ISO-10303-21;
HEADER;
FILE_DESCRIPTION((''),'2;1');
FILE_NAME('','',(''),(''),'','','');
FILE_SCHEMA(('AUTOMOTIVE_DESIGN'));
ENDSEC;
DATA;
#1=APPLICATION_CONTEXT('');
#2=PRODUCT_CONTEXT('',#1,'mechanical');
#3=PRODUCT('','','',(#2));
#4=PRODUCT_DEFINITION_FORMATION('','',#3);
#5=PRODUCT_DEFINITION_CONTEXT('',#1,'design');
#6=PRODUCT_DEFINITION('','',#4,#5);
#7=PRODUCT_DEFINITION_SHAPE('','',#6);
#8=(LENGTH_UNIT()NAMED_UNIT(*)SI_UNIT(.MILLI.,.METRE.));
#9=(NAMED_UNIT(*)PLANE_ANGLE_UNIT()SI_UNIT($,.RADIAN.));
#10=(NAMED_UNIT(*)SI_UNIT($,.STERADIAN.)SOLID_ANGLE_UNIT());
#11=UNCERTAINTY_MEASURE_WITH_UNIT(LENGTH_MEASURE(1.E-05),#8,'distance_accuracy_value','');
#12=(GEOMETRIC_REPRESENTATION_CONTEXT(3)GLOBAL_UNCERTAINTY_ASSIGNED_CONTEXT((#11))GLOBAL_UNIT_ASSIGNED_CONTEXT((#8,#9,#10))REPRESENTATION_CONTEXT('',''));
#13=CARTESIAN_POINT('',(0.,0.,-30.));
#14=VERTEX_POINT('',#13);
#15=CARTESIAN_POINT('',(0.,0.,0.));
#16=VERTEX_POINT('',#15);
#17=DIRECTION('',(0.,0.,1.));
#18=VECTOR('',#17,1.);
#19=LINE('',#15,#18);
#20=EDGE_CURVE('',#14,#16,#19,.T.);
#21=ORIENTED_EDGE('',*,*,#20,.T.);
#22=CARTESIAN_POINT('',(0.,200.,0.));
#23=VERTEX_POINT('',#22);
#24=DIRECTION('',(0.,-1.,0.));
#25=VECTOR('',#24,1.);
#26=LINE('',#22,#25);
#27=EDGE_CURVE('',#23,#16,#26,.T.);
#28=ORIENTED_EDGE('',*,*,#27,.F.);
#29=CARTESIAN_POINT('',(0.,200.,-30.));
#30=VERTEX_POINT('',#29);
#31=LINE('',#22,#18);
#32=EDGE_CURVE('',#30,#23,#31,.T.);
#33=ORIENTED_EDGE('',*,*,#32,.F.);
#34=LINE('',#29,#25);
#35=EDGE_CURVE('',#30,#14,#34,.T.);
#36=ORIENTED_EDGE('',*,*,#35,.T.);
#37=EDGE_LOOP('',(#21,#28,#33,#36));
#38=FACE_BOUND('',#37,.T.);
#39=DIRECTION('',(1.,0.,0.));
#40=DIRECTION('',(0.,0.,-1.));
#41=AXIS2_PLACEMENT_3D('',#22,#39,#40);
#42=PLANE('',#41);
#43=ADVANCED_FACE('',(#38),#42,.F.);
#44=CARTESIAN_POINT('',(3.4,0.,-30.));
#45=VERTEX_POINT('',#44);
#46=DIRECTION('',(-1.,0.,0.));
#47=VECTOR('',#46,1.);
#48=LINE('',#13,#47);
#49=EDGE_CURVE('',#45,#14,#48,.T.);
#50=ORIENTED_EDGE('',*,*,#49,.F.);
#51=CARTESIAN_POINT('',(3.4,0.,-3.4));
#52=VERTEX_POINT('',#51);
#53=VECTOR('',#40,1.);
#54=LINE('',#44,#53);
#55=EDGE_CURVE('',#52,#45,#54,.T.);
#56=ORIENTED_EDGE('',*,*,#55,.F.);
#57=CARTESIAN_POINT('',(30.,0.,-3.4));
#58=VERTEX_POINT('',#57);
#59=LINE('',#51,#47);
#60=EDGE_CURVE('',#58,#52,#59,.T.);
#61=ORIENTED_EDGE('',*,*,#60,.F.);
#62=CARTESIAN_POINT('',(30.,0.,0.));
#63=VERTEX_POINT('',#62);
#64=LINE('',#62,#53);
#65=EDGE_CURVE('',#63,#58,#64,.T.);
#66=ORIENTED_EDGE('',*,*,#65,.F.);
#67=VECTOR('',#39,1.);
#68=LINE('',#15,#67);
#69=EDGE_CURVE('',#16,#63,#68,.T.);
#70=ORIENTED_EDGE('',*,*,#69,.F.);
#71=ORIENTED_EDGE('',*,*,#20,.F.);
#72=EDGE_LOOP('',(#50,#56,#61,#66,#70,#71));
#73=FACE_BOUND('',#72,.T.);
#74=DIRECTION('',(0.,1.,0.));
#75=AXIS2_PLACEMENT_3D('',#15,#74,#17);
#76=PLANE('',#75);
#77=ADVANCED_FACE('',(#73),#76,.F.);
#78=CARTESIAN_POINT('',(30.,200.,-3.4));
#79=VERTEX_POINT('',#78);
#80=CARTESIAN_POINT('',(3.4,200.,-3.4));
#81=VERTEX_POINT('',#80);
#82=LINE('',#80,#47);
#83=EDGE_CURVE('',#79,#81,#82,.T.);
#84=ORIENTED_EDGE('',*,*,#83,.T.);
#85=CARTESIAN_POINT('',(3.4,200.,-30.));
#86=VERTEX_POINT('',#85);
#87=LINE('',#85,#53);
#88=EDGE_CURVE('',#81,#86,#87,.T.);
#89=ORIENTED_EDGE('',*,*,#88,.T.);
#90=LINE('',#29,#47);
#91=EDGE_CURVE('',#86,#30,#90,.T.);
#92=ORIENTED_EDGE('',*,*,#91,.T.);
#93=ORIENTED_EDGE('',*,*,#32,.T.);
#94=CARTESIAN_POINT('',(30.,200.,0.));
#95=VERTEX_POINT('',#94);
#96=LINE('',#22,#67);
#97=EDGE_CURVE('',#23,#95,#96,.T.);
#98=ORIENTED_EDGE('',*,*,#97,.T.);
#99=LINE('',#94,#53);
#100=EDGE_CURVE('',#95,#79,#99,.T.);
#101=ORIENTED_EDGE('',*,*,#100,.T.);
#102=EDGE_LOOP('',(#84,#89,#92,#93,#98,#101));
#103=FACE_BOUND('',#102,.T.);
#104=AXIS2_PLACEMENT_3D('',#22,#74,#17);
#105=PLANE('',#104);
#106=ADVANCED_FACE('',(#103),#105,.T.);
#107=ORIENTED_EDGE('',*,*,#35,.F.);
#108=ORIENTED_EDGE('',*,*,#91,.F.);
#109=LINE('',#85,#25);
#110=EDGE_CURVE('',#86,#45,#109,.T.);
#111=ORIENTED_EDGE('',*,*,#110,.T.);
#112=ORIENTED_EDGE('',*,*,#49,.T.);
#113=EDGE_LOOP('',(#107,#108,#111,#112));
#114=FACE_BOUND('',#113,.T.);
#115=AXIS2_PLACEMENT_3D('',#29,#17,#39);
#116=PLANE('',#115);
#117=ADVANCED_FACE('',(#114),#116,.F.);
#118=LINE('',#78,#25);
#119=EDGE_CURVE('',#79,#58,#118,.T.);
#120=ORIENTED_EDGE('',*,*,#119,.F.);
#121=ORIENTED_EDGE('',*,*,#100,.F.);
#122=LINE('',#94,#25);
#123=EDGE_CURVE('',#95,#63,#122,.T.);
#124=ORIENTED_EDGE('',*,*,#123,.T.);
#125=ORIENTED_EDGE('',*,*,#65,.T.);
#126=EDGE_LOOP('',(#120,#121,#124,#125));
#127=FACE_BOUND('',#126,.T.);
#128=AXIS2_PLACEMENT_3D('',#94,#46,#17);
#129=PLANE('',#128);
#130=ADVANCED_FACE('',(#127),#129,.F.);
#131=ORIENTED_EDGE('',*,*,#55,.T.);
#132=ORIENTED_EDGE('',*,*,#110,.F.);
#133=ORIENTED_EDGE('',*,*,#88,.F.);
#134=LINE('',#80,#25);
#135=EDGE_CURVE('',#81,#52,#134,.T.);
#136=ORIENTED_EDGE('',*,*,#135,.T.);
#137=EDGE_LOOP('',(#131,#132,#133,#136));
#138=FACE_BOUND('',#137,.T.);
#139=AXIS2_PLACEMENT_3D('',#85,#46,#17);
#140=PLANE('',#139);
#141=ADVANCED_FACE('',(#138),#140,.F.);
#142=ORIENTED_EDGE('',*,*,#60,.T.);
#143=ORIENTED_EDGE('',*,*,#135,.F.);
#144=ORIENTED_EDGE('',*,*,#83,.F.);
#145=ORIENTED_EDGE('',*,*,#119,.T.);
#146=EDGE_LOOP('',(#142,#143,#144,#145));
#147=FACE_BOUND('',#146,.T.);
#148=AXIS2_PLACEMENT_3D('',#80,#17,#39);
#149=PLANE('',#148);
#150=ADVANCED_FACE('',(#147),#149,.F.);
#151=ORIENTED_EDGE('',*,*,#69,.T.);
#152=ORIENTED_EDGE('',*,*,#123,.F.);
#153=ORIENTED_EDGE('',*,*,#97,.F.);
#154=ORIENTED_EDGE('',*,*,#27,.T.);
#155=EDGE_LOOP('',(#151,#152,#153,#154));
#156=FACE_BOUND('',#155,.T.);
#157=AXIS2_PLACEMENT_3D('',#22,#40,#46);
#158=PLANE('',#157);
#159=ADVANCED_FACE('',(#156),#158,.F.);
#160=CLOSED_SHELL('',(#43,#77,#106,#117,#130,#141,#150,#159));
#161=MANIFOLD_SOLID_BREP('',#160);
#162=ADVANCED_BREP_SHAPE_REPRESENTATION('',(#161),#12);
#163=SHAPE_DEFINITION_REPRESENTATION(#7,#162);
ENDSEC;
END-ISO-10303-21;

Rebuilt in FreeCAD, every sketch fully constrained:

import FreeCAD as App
import Part
import Sketcher

V = App.Vector


def add_polygon(sketch, points):
    """Adds a closed chain of lines whose ends are joined by coincident constraints."""
    first, n = sketch.GeometryCount, len(points)
    for a, b in zip(points, points[1:] + points[:1]):
        sketch.addGeometry(Part.LineSegment(App.Vector(*a, 0), App.Vector(*b, 0)), False)
    for i in range(n):
        sketch.addConstraint(Sketcher.Constraint("Coincident", first + i, 2, first + (i + 1) % n, 1))

doc = App.newDocument("Part")
body = doc.addObject("PartDesign::Body", "Body")

# Sketch on XZ plane
sketch1 = body.newObject("Sketcher::SketchObject", "Sketch")
sketch1.AttachmentSupport = (doc.getObject("XZ_Plane"), [""])
sketch1.MapMode = "FlatFace"
add_polygon(sketch1, [(0, -30), (0, 0), (30, 0), (30, -3.4), (3.4, -3.4), (3.4, -30)])  # lines 0-5
sketch1.addConstraint(Sketcher.Constraint("Vertical", 0))
sketch1.addConstraint(Sketcher.Constraint("Horizontal", 1))
sketch1.addConstraint(Sketcher.Constraint("Vertical", 2))
sketch1.addConstraint(Sketcher.Constraint("Horizontal", 3))
sketch1.addConstraint(Sketcher.Constraint("Vertical", 4))
sketch1.addConstraint(Sketcher.Constraint("Horizontal", 5))
sketch1.addConstraint(Sketcher.Constraint("Coincident", 0, 2, -1, 1))
sketch1.addConstraint(Sketcher.Constraint("Equal", 1, 0))
sketch1.addConstraint(Sketcher.Constraint("Equal", 5, 2))
sketch1.addConstraint(Sketcher.Constraint("DistanceX", 1, 1, 1, 2, 30.0))
sketch1.addConstraint(Sketcher.Constraint("DistanceX", 3, 2, 3, 1, 26.6))
pad1 = body.newObject("PartDesign::Pad", "Pad")
pad1.Profile = sketch1
pad1.Length = 200
pad1.Reversed = True

doc.recompute()
